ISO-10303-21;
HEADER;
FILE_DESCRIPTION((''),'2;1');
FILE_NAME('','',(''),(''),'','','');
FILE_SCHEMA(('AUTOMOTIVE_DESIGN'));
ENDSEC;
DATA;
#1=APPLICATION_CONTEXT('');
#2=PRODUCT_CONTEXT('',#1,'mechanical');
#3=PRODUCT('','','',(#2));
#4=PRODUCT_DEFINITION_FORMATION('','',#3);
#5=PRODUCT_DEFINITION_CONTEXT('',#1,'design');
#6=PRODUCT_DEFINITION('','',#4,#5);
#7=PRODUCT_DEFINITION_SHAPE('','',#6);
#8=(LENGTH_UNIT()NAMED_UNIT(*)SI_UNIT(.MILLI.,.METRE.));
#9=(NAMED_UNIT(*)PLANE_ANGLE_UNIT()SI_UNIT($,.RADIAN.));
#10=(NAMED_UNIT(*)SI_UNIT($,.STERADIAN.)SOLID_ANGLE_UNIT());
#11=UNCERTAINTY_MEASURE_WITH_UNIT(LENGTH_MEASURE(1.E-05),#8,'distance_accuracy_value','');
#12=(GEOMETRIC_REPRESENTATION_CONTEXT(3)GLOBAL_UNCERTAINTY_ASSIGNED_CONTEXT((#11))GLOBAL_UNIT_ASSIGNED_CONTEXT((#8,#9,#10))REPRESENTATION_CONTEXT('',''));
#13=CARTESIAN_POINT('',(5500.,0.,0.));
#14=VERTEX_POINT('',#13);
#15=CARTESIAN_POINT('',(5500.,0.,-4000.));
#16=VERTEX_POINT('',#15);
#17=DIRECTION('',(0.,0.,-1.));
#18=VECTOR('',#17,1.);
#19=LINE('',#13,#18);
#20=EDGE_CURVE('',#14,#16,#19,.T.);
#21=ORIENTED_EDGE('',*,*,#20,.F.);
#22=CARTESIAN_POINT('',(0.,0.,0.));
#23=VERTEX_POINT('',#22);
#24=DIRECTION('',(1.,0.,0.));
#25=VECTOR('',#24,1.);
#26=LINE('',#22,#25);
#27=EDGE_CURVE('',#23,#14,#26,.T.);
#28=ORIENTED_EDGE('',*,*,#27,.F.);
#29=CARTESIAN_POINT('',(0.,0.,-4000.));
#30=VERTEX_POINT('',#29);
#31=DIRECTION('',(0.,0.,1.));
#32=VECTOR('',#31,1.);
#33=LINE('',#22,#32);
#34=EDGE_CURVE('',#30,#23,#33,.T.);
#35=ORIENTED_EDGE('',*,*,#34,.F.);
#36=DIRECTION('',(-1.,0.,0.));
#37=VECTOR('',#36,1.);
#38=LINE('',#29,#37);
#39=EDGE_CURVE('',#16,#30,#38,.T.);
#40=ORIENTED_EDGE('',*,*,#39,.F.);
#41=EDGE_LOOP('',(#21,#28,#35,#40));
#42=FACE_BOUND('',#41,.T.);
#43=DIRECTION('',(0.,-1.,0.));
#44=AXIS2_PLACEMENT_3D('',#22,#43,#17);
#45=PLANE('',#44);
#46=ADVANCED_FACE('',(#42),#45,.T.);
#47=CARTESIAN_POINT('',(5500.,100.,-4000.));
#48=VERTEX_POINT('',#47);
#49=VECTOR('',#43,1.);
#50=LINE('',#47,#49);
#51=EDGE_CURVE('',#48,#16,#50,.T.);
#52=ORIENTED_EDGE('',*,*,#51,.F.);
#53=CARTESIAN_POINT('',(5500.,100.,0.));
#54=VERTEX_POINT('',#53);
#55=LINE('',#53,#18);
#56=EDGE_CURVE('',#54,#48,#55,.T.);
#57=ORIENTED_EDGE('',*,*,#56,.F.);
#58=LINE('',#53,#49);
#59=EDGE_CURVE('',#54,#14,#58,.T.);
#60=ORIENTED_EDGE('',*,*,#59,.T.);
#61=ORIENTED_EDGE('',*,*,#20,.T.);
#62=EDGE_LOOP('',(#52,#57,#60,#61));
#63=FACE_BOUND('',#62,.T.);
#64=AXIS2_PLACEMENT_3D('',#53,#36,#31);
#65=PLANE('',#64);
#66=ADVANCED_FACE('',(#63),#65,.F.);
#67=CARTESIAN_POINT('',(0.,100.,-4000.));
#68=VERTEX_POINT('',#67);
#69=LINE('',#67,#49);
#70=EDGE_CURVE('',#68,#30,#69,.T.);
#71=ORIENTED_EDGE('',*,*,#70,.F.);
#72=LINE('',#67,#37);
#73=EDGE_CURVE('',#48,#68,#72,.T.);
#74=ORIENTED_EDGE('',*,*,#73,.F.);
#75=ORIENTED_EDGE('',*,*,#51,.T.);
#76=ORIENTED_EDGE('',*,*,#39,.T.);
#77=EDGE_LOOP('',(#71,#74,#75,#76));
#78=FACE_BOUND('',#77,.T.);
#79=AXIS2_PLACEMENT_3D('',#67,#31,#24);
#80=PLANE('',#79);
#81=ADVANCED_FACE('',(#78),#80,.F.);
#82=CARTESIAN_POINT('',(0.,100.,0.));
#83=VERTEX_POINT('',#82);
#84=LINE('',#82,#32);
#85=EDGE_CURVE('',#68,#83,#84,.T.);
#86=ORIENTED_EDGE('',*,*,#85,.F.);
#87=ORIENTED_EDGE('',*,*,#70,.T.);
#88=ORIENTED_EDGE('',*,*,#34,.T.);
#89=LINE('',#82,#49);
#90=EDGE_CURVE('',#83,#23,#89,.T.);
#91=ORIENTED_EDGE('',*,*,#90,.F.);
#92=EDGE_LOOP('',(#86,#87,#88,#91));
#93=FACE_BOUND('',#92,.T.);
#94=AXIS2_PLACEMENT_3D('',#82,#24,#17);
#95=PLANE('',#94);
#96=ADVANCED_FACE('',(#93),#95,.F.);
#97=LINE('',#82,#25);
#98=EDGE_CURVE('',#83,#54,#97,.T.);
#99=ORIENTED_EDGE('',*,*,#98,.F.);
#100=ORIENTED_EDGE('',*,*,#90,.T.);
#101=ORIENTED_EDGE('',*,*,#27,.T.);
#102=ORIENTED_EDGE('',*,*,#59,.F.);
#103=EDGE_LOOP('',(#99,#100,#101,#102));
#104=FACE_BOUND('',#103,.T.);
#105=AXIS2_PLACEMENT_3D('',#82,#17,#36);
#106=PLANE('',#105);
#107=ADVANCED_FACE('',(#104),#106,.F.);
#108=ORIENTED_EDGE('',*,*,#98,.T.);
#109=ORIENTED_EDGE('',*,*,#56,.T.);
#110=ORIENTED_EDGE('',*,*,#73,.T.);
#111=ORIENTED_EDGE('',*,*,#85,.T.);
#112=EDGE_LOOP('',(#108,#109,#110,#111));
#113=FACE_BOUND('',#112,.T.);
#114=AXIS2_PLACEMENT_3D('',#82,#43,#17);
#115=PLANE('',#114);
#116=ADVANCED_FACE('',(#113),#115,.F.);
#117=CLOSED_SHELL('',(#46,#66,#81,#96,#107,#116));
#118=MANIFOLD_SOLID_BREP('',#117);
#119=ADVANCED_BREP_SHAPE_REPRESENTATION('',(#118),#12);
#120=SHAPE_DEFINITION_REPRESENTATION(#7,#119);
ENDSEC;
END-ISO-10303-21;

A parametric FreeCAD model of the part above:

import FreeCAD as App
import Part
import Sketcher


def add_polygon(sketch, points):
    """Adds a closed chain of lines whose ends are joined by coincident constraints."""
    first, n = sketch.GeometryCount, len(points)
    for a, b in zip(points, points[1:] + points[:1]):
        sketch.addGeometry(Part.LineSegment(App.Vector(*a, 0), App.Vector(*b, 0)), False)
    for i in range(n):
        sketch.addConstraint(Sketcher.Constraint("Coincident", first + i, 2, first + (i + 1) % n, 1))

doc = App.newDocument("Part")
body = doc.addObject("PartDesign::Body", "Body")

# Sketch on XZ plane
sketch1 = body.newObject("Sketcher::SketchObject", "Sketch")
sketch1.AttachmentSupport = (doc.getObject("XZ_Plane"), [""])
sketch1.MapMode = "FlatFace"
add_polygon(sketch1, [(0, -4000), (0, 0), (5500, 0), (5500, -4000)])  # lines 0-3
sketch1.addConstraint(Sketcher.Constraint("Vertical", 0))
sketch1.addConstraint(Sketcher.Constraint("Horizontal", 1))
sketch1.addConstraint(Sketcher.Constraint("Vertical", 2))
sketch1.addConstraint(Sketcher.Constraint("Horizontal", 3))
sketch1.addConstraint(Sketcher.Constraint("Coincident", 0, 2, -1, 1))
sketch1.addConstraint(Sketcher.Constraint("DistanceX", 1, 1, 1, 2, 5500.0))
sketch1.addConstraint(Sketcher.Constraint("DistanceY", 0, 1, 0, 2, 4000.0))
pad1 = body.newObject("PartDesign::Pad", "Pad")
pad1.Profile = sketch1
pad1.Length = 100
pad1.Reversed = True

doc.recompute()
